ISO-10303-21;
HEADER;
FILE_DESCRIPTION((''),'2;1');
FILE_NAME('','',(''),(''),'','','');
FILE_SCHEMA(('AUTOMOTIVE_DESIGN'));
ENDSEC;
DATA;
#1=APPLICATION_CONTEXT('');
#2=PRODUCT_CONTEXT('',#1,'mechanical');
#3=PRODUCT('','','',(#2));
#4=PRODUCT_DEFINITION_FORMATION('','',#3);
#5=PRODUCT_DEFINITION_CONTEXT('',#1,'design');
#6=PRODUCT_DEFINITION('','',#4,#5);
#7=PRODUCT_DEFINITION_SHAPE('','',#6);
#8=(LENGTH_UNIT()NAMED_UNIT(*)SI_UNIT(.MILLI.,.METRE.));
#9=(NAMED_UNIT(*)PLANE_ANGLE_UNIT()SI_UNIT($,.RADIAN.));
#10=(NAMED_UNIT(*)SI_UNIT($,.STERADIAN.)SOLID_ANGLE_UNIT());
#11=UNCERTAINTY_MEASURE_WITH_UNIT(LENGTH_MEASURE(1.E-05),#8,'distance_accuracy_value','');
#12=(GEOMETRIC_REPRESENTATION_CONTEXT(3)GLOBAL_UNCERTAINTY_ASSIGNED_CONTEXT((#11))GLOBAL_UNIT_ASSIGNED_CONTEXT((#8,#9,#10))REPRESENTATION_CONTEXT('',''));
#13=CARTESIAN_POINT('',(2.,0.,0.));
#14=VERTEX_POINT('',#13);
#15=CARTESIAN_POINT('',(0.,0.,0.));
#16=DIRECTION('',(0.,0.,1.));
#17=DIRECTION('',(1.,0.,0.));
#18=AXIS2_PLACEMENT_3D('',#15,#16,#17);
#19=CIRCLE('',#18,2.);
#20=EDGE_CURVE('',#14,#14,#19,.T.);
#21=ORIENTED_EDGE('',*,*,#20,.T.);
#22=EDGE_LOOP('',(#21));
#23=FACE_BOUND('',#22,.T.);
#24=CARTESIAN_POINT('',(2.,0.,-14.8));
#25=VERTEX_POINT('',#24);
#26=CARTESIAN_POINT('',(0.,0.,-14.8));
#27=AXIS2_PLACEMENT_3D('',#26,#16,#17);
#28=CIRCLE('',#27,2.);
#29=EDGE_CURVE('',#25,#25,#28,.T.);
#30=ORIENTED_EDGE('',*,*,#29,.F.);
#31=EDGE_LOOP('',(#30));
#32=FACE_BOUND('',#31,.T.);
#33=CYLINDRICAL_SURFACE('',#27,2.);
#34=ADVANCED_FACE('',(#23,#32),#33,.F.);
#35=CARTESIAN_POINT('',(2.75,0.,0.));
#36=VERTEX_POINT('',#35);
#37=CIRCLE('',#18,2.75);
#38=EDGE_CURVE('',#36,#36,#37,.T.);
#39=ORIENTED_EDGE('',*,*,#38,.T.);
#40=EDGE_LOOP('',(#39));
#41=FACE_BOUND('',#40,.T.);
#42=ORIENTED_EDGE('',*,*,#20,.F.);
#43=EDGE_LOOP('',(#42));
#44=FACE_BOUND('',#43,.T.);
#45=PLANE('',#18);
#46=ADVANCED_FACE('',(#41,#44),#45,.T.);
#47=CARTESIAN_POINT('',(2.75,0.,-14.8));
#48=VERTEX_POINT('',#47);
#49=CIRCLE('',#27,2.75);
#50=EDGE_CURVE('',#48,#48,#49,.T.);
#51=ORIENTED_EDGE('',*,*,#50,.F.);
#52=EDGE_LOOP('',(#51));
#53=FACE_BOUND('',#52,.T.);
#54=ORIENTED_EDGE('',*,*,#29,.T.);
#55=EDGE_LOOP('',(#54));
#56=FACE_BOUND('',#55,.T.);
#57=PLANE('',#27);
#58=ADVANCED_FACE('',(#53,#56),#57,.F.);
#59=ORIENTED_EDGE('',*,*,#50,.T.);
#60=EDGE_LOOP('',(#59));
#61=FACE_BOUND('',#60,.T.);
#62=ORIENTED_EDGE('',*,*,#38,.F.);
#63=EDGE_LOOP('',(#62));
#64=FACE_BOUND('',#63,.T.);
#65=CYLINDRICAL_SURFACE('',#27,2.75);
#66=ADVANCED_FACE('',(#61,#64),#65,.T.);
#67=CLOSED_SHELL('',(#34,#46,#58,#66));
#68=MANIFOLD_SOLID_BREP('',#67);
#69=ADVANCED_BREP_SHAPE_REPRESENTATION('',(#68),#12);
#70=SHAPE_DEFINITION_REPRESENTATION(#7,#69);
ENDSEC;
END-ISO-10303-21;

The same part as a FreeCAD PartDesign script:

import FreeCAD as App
import Part
import Sketcher

doc = App.newDocument("Part")
body = doc.addObject("PartDesign::Body", "Body")

sketch1 = body.newObject("Sketcher::SketchObject", "Sketch")
sketch1.AttachmentSupport = (doc.getObject("XY_Plane"), [""])
sketch1.MapMode = "FlatFace"
sketch1.addGeometry([
    Part.Circle(App.Vector(0, 0, 0), App.Vector(0, 0, 1), 2.8),
    Part.Circle(App.Vector(0, 0, 0), App.Vector(0, 0, 1), 2),
], False)
sketch1.addConstraint([
    Sketcher.Constraint("Coincident", 0, 3, -1, 1),
    Sketcher.Constraint("Coincident", 1, 3, -1, 1),
    Sketcher.Constraint("Diameter", 1, 4.0),
    Sketcher.Constraint("Diameter", 0, 5.5),
])
pad1 = body.newObject("PartDesign::Pad", "Pad")
pad1.Profile = sketch1
pad1.Length = 14.8
pad1.Reversed = True

doc.recompute()
